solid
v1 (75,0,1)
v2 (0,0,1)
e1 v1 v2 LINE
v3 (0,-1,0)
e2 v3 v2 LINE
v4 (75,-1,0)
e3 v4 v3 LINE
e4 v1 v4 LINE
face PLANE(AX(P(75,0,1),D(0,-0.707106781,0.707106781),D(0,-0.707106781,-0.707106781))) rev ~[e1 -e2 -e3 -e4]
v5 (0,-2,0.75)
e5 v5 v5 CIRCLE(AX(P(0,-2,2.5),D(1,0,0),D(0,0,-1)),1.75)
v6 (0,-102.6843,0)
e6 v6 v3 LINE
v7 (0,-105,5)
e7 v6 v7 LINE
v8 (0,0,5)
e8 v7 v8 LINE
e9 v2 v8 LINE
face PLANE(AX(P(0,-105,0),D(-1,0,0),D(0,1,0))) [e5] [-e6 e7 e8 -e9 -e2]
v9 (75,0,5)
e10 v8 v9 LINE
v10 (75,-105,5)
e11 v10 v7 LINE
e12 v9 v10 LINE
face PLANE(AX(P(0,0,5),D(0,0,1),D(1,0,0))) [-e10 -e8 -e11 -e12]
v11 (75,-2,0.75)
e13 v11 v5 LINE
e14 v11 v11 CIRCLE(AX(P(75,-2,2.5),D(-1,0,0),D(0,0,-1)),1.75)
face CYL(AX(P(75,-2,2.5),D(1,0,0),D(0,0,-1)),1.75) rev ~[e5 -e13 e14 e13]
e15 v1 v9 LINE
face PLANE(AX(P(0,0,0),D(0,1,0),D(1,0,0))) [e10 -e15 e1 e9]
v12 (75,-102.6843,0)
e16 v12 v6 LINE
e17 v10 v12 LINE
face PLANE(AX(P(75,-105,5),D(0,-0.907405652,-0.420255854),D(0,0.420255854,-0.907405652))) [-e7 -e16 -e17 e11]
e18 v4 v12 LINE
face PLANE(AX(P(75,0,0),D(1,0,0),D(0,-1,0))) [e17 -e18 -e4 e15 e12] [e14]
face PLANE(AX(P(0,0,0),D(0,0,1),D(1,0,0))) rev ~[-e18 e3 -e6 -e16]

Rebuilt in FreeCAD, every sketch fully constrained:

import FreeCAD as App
import Part
import Sketcher
Q = App.Units.Quantity


def add_polygon(sketch, points):
    """Adds a closed chain of lines whose ends are joined by coincident constraints."""
    first, n = sketch.GeometryCount, len(points)
    for a, b in zip(points, points[1:] + points[:1]):
        sketch.addGeometry(Part.LineSegment(App.Vector(*a, 0), App.Vector(*b, 0)), False)
    for i in range(n):
        sketch.addConstraint(Sketcher.Constraint("Coincident", first + i, 2, first + (i + 1) % n, 1))

doc = App.newDocument("Part")
params = doc.addObject("Spreadsheet::Sheet", "Params")
for row, (alias, value) in enumerate([
    ("sketch1_width", "75 mm"),
    ("sketch1_height", "105 mm"),
    ("pad1_length", "5 mm"),
    ("sketch2_diameter", "3.5 mm"),
    ("sketch3_width", "1 mm"),
    ("sketch4_height", "5 mm"),
], start=1):
    params.set(f"A{row}", alias)
    params.set(f"B{row}", "=" + value)
    params.setAlias(f"B{row}", alias)

body = doc.addObject("PartDesign::Body", "Body")

sketch1 = doc.addObject("Sketcher::SketchObject", "Sketch")
body.addObject(sketch1)
sketch1.AttachmentSupport = (doc.XY_Plane, [""])
sketch1.MapMode = "FlatFace"
add_polygon(sketch1, [(75, 0), (0, 0), (0, -105), (75, -105)])
sketch1.addConstraint([
    Sketcher.Constraint("Horizontal", 0),
    Sketcher.Constraint("Vertical", 1),
    Sketcher.Constraint("Horizontal", 2),
    Sketcher.Constraint("Vertical", 3),
    Sketcher.Constraint("Coincident", 0, 2, -1, 1),
    Sketcher.Constraint("DistanceX", 0, 2, 0, 1, 75.0),
    Sketcher.Constraint("DistanceY", 1, 2, 1, 1, 105.0),
])
sketch1.setExpression("Constraints[9]", "Params.sketch1_width")
sketch1.setExpression("Constraints[10]", "Params.sketch1_height")
pad1 = doc.addObject("PartDesign::Pad", "Pad")
body.addObject(pad1)
pad1.Profile = sketch1
pad1.setExpression("Length", "Params.pad1_length")

sketch2 = doc.addObject("Sketcher::SketchObject", "Sketch001")
body.addObject(sketch2)
sketch2.AttachmentSupport = (doc.YZ_Plane, [""])
sketch2.MapMode = "FlatFace"
sketch2.AttachmentOffset = App.Placement(App.Vector(0, 0, 75), App.Rotation())
sketch2.addGeometry(Part.Circle(App.Vector(-2, 2.5, 0), App.Vector(0, 0, 1), 1.8), False)
sketch2.addConstraint([
    Sketcher.Constraint("Diameter", 0, 3.5),
    Sketcher.Constraint("DistanceX", 0, 3, -1, 1, 2.0),
    Sketcher.Constraint("DistanceY", -1, 1, 0, 3, 2.5),
])
sketch2.setExpression("Constraints[0]", "Params.sketch2_diameter")
pocket1 = doc.addObject("PartDesign::Pocket", "Pocket")
body.addObject(pocket1)
pocket1.Profile = sketch2
pocket1.Type = "ThroughAll"

sketch3 = doc.addObject("Sketcher::SketchObject", "Sketch002")
body.addObject(sketch3)
sketch3.AttachmentSupport = (doc.YZ_Plane, [""])
sketch3.MapMode = "FlatFace"
sketch3.AttachmentOffset = App.Placement(App.Vector(0, 0, 75), App.Rotation())
add_polygon(sketch3, [(0, 0), (0, 1), (-1, 0)])
sketch3.addConstraint([
    Sketcher.Constraint("Vertical", 0),
    Sketcher.Constraint("Horizontal", 2),
    Sketcher.Constraint("Coincident", 2, 2, -1, 1),
    Sketcher.Constraint("Equal", 2, 0),
    Sketcher.Constraint("DistanceX", 2, 1, 2, 2, 1.0),
])
sketch3.setExpression("Constraints[7]", "Params.sketch3_width")
pocket2 = doc.addObject("PartDesign::Pocket", "Pocket001")
body.addObject(pocket2)
pocket2.Profile = sketch3
pocket2.Type = "ThroughAll"

sketch4 = doc.addObject("Sketcher::SketchObject", "Sketch003")
body.addObject(sketch4)
sketch4.AttachmentSupport = (doc.YZ_Plane, [""])
sketch4.MapMode = "FlatFace"
sketch4.AttachmentOffset = App.Placement(App.Vector(0, 0, 75), App.Rotation())
add_polygon(sketch4, [(-105, 0), (-102.7, 0), (-105, 5)])
sketch4.addConstraint([
    Sketcher.Constraint("Horizontal", 0),
    Sketcher.Constraint("Vertical", 2),
    Sketcher.Constraint("PointOnObject", 0, 2, -1),
    Sketcher.Constraint("DistanceY", 2, 2, 2, 1, 5.0),
    Sketcher.Constraint("DistanceX", 1, 2, -1, 1, 105.0),
    Sketcher.Constraint("Angle", 1, Q("114.8507 deg")),
])
sketch4.setExpression("Constraints[6]", "Params.sketch4_height")
pocket3 = doc.addObject("PartDesign::Pocket", "Pocket002")
body.addObject(pocket3)
pocket3.Profile = sketch4
pocket3.Type = "ThroughAll"

doc.recompute()
